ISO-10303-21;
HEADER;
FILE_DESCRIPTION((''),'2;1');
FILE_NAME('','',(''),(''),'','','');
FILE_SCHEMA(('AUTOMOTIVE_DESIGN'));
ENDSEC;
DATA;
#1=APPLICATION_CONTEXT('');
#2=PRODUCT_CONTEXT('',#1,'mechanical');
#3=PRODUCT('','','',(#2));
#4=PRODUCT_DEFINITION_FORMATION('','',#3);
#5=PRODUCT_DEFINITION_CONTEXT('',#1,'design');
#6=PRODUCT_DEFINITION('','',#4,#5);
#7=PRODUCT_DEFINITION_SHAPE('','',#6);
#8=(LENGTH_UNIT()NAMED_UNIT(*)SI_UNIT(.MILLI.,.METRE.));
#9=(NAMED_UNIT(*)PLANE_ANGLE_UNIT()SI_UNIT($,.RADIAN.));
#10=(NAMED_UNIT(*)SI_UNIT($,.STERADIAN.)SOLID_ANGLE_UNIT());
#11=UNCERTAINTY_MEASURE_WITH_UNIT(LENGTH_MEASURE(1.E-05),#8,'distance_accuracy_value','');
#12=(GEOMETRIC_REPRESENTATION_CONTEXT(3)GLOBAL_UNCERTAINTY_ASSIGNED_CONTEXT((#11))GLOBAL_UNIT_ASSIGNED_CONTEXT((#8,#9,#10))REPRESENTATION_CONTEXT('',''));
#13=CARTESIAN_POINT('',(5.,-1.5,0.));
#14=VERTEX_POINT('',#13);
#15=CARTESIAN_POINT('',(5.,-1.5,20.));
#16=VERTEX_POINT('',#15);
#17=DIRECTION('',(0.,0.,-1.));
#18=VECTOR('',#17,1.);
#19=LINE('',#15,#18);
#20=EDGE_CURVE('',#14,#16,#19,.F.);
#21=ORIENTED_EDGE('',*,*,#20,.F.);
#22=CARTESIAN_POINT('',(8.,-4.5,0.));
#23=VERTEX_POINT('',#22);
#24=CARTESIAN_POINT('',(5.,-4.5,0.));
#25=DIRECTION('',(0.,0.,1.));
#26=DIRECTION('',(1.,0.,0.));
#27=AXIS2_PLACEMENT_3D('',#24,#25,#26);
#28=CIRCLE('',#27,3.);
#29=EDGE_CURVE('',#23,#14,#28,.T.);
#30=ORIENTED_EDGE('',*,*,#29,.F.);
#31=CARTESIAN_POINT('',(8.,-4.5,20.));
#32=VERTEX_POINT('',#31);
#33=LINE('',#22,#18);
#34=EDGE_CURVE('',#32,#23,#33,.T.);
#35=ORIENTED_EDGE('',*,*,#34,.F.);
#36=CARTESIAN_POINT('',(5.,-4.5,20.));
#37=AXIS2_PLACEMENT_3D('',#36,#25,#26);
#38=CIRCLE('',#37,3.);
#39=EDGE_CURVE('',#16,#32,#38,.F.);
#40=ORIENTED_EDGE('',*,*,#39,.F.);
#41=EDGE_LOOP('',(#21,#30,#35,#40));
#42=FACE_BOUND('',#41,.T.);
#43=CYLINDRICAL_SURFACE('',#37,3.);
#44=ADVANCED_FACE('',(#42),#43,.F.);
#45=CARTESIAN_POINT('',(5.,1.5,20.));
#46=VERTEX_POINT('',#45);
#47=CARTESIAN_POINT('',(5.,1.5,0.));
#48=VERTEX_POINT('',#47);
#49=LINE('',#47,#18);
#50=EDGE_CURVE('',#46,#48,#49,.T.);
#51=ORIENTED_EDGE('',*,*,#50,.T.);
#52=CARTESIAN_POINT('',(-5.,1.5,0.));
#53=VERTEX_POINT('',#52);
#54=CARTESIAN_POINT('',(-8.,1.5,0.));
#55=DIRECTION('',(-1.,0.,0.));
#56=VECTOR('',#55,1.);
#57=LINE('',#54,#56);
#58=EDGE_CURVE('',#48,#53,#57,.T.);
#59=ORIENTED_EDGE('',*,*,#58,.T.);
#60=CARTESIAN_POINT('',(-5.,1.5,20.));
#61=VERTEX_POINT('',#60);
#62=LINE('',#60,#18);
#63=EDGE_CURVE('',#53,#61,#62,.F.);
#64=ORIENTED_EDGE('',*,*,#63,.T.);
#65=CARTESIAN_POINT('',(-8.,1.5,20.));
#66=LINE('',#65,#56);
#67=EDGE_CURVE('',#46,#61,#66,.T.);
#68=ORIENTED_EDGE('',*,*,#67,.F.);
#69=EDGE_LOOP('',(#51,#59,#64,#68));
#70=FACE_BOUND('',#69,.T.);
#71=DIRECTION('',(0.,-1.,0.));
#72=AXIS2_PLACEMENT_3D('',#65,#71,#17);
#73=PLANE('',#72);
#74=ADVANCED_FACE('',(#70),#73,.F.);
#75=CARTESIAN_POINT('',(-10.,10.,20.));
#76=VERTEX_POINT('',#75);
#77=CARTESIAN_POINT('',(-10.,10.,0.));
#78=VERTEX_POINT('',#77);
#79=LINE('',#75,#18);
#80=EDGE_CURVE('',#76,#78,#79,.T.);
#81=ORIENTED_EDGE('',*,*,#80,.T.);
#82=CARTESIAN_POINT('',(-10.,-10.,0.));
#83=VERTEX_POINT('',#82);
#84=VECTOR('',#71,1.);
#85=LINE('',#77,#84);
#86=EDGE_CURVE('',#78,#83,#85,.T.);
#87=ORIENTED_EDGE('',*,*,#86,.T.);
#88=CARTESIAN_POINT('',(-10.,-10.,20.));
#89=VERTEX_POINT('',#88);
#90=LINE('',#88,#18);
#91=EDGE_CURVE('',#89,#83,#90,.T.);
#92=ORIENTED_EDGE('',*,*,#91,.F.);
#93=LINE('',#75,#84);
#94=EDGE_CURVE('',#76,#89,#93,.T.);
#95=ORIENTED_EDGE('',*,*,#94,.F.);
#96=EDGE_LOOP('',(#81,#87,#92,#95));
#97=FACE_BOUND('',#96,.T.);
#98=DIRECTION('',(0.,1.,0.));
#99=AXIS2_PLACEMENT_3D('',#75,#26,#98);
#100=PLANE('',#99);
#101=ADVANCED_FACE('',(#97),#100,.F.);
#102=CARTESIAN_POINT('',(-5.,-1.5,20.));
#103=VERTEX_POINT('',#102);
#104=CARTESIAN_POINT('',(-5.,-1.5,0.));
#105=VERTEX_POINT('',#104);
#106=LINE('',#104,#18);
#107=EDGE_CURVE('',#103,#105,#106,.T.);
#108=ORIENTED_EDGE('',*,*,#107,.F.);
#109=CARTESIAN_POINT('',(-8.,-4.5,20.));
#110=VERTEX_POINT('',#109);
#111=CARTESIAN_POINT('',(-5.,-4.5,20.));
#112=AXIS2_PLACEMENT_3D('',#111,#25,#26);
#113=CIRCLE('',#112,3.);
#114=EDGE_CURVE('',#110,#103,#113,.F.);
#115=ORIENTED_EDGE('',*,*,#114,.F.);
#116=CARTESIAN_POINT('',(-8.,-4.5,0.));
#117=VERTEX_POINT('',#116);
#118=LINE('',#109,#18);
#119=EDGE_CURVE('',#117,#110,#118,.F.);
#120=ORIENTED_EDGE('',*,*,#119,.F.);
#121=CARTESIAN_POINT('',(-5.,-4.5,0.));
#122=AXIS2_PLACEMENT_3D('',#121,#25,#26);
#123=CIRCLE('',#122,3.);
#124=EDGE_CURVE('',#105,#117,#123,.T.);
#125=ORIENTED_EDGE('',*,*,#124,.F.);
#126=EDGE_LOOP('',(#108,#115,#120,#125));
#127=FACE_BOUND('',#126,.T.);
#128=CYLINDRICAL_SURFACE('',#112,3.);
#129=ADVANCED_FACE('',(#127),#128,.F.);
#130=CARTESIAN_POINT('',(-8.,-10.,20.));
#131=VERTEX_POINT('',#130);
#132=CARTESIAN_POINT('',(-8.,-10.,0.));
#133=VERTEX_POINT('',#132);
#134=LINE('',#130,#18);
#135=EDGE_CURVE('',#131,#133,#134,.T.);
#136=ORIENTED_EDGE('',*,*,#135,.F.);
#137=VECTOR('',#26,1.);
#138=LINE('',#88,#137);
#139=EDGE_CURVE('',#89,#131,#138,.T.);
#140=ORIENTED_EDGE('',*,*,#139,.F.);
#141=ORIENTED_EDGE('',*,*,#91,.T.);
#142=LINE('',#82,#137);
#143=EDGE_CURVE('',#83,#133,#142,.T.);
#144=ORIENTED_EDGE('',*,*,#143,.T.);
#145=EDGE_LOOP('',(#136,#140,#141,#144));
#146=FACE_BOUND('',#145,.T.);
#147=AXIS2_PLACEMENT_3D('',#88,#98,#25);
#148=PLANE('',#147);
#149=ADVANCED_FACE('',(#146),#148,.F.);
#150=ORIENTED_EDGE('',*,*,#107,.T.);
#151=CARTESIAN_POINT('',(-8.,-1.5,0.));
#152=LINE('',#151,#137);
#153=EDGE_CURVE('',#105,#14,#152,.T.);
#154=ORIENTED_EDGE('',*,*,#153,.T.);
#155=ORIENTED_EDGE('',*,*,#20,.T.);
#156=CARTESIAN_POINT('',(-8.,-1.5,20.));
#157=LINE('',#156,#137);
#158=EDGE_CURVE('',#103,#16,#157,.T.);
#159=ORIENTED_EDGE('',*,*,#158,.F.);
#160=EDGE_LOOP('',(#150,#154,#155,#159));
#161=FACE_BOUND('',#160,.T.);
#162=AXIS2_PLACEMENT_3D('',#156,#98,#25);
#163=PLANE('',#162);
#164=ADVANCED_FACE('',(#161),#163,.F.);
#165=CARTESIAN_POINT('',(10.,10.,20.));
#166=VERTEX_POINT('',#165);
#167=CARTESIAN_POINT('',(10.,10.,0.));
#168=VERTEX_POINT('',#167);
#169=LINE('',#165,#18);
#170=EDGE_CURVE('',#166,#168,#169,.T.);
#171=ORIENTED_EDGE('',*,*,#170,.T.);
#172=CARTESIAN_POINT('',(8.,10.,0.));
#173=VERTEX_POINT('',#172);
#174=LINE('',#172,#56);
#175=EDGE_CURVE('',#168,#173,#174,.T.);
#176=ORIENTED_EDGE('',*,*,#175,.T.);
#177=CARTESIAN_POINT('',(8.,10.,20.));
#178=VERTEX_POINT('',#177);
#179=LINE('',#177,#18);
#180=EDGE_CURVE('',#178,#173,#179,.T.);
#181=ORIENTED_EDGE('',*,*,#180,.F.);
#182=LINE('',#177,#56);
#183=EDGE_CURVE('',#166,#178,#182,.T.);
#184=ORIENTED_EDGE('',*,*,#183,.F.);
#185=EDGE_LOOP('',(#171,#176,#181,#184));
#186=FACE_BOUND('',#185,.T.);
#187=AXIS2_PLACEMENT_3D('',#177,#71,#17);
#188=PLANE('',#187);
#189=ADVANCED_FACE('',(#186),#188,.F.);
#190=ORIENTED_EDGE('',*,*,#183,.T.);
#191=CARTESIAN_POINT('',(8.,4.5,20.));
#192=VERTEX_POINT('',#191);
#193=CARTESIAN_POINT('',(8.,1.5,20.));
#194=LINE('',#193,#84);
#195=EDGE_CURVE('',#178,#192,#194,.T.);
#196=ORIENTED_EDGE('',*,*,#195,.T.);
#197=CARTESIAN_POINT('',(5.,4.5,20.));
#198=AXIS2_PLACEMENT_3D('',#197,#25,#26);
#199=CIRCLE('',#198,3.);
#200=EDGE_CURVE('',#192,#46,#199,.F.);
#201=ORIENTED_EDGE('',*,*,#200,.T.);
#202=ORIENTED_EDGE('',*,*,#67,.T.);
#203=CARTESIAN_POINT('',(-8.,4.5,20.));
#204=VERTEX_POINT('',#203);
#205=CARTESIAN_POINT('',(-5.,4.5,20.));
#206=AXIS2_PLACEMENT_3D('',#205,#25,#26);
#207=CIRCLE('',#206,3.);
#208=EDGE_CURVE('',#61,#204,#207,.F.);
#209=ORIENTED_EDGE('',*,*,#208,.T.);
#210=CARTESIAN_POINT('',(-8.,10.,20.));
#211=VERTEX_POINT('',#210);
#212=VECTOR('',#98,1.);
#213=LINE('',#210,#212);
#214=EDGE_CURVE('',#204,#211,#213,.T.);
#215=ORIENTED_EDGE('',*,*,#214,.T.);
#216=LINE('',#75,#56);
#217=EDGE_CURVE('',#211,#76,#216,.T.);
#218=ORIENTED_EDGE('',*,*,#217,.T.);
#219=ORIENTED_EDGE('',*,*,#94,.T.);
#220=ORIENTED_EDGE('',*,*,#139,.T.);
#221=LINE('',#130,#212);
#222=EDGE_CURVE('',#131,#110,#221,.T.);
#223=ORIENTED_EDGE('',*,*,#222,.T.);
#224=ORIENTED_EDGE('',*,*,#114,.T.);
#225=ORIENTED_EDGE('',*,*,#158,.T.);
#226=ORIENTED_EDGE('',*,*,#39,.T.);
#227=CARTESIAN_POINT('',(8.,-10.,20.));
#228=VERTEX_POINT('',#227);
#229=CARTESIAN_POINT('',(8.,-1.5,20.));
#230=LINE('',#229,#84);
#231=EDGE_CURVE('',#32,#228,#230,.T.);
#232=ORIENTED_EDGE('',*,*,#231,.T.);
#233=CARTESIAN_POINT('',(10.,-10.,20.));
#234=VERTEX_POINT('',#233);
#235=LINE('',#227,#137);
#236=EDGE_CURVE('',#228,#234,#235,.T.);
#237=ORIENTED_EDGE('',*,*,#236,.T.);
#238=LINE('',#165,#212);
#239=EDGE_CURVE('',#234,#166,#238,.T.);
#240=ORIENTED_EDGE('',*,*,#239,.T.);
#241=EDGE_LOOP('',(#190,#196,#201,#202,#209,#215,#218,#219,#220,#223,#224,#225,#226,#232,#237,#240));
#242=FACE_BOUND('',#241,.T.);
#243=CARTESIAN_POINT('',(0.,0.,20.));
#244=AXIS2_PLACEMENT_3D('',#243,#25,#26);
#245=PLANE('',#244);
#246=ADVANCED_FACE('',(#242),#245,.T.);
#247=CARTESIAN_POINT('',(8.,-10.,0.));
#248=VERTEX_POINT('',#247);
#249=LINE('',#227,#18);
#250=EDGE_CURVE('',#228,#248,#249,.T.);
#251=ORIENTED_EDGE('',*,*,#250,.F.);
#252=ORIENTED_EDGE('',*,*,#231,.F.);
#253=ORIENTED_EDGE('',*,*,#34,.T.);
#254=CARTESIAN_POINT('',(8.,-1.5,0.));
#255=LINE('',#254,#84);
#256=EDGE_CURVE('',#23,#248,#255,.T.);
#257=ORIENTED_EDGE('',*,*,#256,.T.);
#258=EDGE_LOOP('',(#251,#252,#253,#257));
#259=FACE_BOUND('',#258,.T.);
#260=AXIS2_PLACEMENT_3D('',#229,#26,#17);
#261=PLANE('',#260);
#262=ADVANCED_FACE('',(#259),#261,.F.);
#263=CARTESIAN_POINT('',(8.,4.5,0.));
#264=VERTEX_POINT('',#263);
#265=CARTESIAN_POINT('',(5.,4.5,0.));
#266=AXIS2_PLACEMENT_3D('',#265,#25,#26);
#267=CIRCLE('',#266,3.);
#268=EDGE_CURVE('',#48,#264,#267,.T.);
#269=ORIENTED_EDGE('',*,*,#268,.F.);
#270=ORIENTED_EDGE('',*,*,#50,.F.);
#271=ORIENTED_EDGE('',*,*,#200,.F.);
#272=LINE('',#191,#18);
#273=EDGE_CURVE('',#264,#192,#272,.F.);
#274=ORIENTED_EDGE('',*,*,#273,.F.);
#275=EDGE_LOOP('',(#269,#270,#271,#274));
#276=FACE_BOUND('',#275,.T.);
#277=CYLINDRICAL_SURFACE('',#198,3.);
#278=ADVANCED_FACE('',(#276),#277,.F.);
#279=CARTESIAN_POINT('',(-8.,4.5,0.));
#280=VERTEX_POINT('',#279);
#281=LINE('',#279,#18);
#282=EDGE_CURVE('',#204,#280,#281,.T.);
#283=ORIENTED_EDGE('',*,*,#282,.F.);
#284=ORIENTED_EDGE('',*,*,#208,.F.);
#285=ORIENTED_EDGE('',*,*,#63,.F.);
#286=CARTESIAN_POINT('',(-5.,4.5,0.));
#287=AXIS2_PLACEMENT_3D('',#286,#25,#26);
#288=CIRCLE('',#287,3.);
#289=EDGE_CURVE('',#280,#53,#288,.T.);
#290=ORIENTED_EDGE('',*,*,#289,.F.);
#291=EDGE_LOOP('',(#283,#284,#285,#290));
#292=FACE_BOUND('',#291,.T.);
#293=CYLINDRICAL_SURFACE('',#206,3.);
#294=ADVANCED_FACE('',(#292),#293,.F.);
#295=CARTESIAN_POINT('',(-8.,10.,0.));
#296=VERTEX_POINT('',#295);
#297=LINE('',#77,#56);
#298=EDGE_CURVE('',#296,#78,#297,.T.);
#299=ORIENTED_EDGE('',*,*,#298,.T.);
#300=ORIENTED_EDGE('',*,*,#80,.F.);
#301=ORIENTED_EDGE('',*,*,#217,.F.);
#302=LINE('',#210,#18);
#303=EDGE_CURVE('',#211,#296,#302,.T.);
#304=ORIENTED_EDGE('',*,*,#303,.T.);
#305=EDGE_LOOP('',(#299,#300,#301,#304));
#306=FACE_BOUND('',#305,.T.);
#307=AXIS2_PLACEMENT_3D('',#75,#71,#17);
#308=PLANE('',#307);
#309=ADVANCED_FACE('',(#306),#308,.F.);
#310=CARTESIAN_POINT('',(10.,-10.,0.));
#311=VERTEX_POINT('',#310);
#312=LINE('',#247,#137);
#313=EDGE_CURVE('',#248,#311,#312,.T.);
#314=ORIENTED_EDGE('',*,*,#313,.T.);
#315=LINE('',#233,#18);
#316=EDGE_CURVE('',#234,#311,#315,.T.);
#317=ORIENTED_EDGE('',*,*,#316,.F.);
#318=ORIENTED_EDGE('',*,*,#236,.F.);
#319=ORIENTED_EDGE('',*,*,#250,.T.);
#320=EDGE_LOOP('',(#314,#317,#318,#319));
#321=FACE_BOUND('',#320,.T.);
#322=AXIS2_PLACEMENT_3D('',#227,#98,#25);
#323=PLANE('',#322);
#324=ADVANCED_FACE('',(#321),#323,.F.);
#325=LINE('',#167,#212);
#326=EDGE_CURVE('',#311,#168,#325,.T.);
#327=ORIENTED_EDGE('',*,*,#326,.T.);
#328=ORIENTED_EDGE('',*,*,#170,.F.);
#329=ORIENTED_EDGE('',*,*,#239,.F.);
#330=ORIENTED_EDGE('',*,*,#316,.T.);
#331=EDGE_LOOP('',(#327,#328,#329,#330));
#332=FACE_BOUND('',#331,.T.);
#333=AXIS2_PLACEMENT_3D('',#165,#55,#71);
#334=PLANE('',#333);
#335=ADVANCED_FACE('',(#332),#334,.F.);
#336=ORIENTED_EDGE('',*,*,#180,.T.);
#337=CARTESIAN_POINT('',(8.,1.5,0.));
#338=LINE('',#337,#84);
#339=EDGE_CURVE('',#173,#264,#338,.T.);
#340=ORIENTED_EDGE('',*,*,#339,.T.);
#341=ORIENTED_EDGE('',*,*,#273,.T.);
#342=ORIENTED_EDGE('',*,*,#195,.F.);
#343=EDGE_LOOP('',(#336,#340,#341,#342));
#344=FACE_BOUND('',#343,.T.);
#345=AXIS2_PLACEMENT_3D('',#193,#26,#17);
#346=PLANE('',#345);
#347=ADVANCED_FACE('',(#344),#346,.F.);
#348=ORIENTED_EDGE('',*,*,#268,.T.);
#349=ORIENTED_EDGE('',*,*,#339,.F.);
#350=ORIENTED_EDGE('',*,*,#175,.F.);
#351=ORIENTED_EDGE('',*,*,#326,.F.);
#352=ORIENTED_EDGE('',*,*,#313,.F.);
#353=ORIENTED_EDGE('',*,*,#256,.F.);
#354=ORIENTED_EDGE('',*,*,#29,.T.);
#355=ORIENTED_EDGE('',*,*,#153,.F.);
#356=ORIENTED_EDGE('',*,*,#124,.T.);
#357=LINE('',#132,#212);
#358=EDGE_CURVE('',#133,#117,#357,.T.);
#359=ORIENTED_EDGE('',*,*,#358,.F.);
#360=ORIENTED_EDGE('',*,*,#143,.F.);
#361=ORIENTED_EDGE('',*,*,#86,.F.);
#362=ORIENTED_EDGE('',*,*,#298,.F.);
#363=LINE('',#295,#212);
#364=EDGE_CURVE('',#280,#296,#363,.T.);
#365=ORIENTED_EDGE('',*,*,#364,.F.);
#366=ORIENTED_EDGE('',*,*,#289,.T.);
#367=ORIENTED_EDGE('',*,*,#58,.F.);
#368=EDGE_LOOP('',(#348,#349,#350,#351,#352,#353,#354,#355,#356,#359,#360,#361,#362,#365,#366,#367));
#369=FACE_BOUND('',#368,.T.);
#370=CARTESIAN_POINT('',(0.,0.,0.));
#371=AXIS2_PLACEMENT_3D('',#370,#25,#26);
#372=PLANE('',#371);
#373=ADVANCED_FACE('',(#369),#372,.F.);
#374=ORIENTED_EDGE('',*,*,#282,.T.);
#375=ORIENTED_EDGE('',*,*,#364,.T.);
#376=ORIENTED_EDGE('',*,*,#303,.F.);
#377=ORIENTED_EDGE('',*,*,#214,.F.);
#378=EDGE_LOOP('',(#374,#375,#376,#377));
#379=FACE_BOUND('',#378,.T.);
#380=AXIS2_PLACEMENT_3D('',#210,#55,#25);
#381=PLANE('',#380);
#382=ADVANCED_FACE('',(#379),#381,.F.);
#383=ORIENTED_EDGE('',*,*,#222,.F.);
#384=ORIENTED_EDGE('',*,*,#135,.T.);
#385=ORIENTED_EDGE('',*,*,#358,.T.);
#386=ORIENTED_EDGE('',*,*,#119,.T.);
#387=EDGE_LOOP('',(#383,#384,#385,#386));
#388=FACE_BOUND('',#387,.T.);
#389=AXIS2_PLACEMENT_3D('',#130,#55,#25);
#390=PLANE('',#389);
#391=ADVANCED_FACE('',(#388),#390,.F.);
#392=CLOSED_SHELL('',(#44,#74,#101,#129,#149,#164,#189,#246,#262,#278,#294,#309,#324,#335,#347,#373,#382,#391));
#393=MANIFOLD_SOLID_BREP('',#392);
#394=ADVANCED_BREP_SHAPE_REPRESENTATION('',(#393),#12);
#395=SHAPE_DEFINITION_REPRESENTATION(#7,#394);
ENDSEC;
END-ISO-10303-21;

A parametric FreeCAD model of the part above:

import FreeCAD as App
import Part
import Sketcher
Q = App.Units.Quantity


def edges_at(feature, points):
    """Names of the edges that pass closest to the given points."""
    edges = feature.Shape.Edges
    near = lambda p: min(range(len(edges)), key=lambda i: edges[i].distToShape(Part.Vertex(*p))[0])
    return sorted({f"Edge{near(p) + 1}" for p in points})


def add_polygon(sketch, points):
    """Adds a closed chain of lines whose ends are joined by coincident constraints."""
    first, n = sketch.GeometryCount, len(points)
    for a, b in zip(points, points[1:] + points[:1]):
        sketch.addGeometry(Part.LineSegment(App.Vector(*a, 0), App.Vector(*b, 0)), False)
    for i in range(n):
        sketch.addConstraint(Sketcher.Constraint("Coincident", first + i, 2, first + (i + 1) % n, 1))

doc = App.newDocument("Part")
body = doc.addObject("PartDesign::Body", "Body")

sketch1 = body.newObject("Sketcher::SketchObject", "Sketch")
sketch1.AttachmentSupport = (doc.getObject("XY_Plane"), [""])
sketch1.MapMode = "FlatFace"
add_polygon(sketch1, [(-10, -10), (-8, -10), (-8, -1.5), (8, -1.5), (8, -10), (10, -10), (10, 10), (8, 10), (8, 1.5), (-8, 1.5), (-8, 10), (-10, 10)])
sketch1.addConstraint([
    Sketcher.Constraint("Horizontal", 0),
    Sketcher.Constraint("Vertical", 1),
    Sketcher.Constraint("Horizontal", 2),
    Sketcher.Constraint("Vertical", 3),
    Sketcher.Constraint("Horizontal", 4),
    Sketcher.Constraint("Vertical", 5),
    Sketcher.Constraint("Horizontal", 6),
    Sketcher.Constraint("Vertical", 7),
    Sketcher.Constraint("Horizontal", 8),
    Sketcher.Constraint("Vertical", 9),
    Sketcher.Constraint("Horizontal", 10),
    Sketcher.Constraint("Vertical", 11),
    Sketcher.Constraint("Symmetric", 0, 2, 6, 2, -1, 1),
    Sketcher.Constraint("Symmetric", 2, 2, 8, 2, -1, 1),
    Sketcher.Constraint("Symmetric", 4, 2, 10, 2, -1, 1),
    Sketcher.Constraint("Symmetric", 0, 2, 3, 2, -2),
    Sketcher.Constraint("DistanceX", 0, 1, 0, 2, Q("2 mm")),
    Sketcher.Constraint("DistanceX", 2, 1, 2, 2, Q("16 mm")),
    Sketcher.Constraint("DistanceY", 5, 1, 5, 2, Q("20 mm")),
    Sketcher.Constraint("DistanceY", 1, 1, 1, 2, Q("8.5 mm")),
])
pad1 = body.newObject("PartDesign::Pad", "Pad")
pad1.Profile = sketch1
pad1.Length = 20
doc.recompute()

fillet = body.newObject("PartDesign::Fillet", "Fillet")
fillet.Base = (pad1, edges_at(pad1, [(-8, 1.5, 10)]))
fillet.Radius = 3
doc.recompute()

fillet2 = body.newObject("PartDesign::Fillet", "Fillet001")
fillet2.Base = (fillet, edges_at(fillet, [(8, 1.5, 10), (8, -1.5, 10), (-8, -1.5, 10)]))
fillet2.Radius = 3

doc.recompute()
